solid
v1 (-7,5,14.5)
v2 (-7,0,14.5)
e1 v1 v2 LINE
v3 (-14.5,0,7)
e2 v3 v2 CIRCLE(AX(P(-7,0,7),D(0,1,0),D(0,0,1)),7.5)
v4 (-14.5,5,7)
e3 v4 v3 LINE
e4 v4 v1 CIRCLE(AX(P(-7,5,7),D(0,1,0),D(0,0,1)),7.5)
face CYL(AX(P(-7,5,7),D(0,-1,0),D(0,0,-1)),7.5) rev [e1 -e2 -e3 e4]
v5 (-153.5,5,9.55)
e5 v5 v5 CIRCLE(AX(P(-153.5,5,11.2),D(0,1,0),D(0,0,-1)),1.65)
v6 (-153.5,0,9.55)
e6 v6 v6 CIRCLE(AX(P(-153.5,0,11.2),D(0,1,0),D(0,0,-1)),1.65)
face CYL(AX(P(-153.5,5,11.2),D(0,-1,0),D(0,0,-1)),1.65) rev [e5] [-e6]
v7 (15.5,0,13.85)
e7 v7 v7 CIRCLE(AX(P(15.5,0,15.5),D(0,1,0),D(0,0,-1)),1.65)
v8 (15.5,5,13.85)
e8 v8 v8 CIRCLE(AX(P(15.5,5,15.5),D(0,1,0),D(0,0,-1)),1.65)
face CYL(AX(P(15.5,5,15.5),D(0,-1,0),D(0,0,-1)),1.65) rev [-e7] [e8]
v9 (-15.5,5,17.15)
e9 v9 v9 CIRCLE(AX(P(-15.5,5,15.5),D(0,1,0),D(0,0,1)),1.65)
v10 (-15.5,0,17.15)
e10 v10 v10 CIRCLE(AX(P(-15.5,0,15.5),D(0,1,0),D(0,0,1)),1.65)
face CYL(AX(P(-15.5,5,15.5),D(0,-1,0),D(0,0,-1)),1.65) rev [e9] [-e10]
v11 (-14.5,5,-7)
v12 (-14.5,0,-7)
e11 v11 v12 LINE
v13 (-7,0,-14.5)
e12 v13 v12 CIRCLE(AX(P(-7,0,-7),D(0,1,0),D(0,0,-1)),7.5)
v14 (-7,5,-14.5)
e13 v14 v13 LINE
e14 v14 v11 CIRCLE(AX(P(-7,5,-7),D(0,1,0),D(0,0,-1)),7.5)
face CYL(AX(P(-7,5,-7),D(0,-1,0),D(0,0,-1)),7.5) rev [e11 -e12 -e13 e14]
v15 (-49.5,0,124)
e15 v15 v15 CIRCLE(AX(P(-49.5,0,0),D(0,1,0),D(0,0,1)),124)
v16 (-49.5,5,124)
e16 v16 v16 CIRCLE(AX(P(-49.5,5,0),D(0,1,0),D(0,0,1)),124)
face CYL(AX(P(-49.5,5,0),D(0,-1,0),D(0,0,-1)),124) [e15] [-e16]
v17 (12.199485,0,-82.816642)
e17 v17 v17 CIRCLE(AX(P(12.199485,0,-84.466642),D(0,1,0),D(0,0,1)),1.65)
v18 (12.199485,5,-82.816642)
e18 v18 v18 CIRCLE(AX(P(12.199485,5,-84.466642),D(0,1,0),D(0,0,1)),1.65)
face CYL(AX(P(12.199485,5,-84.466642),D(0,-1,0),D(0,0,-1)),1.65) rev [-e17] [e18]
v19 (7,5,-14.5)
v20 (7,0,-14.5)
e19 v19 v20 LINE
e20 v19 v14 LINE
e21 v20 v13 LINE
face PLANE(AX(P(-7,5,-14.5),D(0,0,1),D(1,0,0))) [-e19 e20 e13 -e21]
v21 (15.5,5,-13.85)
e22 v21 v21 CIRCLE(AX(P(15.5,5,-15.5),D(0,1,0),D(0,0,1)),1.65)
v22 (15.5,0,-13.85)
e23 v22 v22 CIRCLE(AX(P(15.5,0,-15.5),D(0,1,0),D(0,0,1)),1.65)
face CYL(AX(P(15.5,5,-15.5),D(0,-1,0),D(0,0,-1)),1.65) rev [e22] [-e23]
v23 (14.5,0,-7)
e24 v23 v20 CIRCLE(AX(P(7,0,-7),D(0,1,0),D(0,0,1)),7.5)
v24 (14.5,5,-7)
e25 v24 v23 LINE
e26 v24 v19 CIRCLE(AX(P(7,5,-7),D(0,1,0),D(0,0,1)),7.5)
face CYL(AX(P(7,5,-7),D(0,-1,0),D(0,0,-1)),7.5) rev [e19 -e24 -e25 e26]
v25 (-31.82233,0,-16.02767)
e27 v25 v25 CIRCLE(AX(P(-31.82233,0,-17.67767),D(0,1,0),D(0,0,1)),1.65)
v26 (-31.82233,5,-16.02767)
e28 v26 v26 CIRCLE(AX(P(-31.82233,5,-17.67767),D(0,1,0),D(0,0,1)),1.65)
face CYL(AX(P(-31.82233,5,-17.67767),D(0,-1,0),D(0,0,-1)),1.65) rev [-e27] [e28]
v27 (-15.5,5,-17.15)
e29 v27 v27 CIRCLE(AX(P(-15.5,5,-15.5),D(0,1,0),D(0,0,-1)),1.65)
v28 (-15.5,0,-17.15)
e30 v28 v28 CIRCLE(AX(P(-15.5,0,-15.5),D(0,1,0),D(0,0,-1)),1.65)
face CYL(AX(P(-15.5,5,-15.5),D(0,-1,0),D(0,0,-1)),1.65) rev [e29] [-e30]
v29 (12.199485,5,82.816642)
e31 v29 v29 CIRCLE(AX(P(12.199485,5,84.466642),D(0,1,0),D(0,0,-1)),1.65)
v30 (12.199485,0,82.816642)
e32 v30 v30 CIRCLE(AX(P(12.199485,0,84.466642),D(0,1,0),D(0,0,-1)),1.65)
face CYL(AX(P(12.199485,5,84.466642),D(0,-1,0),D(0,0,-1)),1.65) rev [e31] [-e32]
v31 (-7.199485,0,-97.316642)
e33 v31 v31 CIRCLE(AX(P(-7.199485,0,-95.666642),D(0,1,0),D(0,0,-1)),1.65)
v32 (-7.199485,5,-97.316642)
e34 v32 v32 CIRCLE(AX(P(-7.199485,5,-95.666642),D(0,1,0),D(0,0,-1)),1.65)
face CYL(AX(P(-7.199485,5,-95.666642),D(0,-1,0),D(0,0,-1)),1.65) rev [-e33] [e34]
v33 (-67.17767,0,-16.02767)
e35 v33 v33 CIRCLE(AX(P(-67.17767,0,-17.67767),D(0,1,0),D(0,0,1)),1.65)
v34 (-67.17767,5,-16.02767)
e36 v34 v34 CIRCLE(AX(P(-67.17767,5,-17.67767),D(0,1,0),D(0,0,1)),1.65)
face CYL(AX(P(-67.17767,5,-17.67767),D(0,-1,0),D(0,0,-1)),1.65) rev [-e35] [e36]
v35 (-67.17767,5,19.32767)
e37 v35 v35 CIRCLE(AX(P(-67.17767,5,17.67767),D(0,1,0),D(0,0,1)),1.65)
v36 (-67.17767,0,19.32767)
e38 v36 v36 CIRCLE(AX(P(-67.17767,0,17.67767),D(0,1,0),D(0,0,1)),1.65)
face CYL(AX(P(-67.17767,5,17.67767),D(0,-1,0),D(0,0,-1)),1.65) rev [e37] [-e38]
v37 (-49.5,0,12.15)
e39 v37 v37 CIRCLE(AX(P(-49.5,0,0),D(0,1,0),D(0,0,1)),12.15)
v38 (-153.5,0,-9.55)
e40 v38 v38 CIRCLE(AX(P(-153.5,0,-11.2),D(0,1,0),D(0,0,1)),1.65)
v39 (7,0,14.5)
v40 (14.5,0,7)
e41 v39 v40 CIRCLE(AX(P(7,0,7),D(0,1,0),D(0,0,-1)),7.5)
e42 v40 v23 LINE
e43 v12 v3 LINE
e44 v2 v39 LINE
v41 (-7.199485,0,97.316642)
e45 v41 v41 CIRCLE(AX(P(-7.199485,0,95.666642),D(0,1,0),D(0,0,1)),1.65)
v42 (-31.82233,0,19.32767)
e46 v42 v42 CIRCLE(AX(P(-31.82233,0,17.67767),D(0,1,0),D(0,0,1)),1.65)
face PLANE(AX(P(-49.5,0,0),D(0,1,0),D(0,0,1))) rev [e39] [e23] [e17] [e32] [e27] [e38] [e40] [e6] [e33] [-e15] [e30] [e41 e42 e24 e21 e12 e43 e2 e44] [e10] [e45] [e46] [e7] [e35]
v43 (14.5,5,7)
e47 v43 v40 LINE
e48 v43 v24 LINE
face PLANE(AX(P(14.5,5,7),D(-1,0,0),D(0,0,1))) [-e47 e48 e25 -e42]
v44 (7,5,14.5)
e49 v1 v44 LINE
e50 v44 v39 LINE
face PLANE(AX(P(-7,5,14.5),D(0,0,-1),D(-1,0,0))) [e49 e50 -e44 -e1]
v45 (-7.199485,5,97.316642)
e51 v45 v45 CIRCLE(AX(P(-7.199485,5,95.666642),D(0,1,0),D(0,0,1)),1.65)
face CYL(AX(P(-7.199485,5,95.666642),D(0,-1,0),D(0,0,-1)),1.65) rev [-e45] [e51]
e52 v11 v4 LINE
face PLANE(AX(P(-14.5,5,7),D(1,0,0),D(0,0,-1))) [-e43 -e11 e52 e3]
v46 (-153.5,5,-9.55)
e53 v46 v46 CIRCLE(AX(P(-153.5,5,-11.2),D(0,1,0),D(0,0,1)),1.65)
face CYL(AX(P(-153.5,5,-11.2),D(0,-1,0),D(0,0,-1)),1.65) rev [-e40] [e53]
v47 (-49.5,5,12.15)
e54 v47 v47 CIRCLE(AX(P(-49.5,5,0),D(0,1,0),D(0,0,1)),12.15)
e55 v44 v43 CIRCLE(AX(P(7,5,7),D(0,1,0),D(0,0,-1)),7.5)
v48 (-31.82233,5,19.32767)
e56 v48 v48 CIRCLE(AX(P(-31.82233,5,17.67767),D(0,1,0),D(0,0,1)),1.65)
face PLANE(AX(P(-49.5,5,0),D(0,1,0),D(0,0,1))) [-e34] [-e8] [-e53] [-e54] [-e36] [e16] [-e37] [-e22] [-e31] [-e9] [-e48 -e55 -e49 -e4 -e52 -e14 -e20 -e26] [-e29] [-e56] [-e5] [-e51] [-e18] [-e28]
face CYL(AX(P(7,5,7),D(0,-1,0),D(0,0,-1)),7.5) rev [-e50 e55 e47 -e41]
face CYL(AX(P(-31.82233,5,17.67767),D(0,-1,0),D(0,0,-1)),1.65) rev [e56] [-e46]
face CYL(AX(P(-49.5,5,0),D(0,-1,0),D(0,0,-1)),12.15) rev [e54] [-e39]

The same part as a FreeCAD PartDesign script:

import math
import FreeCAD as App
import Part
import Sketcher

V = App.Vector
Q = App.Units.Quantity

doc = App.newDocument("Part")
params = doc.addObject("Spreadsheet::Sheet", "Params")
for row, (alias, value) in enumerate([
    ("sketch1_diameter", "248 mm"),
    ("sketch1_diameter2", "3.3 mm"),
    ("sketch1_diameter3", "24.3 mm"),
    ("sketch1_radius", "7.5 mm"),
    ("sketch1_width", "14 mm"),
    ("pad1_length", "5 mm"),
], start=1):
    params.set(f"A{row}", alias)
    params.set(f"B{row}", "=" + value)
    params.setAlias(f"B{row}", alias)

body = doc.addObject("PartDesign::Body", "Body")

sketch1 = body.newObject("Sketcher::SketchObject", "Sketch")
sketch1.AttachmentSupport = (doc.getObject("XZ_Plane"), [""])
sketch1.MapMode = "FlatFace"
sketch1.addGeometry(Part.Circle(V(-49.5, 0, 0), V(0, 0, 1), 124), False)
sketch1.addGeometry(Part.Circle(V(-153.5, -11.2, 0), V(0, 0, 1), 1.6), False)
sketch1.addGeometry(Part.Circle(V(-153.5, 11.2, 0), V(0, 0, 1), 1.6), False)
sketch1.addGeometry(Part.Circle(V(-67.2, -17.7, 0), V(0, 0, 1), 1.6), False)
sketch1.addGeometry(Part.Circle(V(-31.8, -17.7, 0), V(0, 0, 1), 1.6), False)
sketch1.addGeometry(Part.Circle(V(-7.2, -95.7, 0), V(0, 0, 1), 1.6), False)
sketch1.addGeometry(Part.Circle(V(12.2, -84.5, 0), V(0, 0, 1), 1.6), False)
sketch1.addGeometry(Part.Circle(V(-15.5, -15.5, 0), V(0, 0, 1), 1.6), False)
sketch1.addGeometry(Part.Circle(V(15.5, -15.5, 0), V(0, 0, 1), 1.6), False)
sketch1.addGeometry(Part.Circle(V(-67.2, 17.7, 0), V(0, 0, 1), 1.6), False)
sketch1.addGeometry(Part.Circle(V(-49.5, 0, 0), V(0, 0, 1), 12.2), False)
sketch1.addGeometry(Part.Circle(V(-31.8, 17.7, 0), V(0, 0, 1), 1.6), False)
sketch1.addGeometry(Part.Circle(V(-15.5, 15.5, 0), V(0, 0, 1), 1.6), False)
sketch1.addGeometry(Part.LineSegment(V(14.5, -7, 0), V(14.5, 7, 0)), False)
sketch1.addGeometry(Part.ArcOfCircle(Part.Circle(V(7, 7, 0), V(0, 0, 1), 7.5), math.radians(0), math.radians(90)), False)
sketch1.addGeometry(Part.LineSegment(V(7, 14.5, 0), V(-7, 14.5, 0)), False)
sketch1.addGeometry(Part.ArcOfCircle(Part.Circle(V(-7, 7, 0), V(0, 0, 1), 7.5), math.radians(90), math.radians(180)), False)
sketch1.addGeometry(Part.LineSegment(V(-14.5, 7, 0), V(-14.5, -7, 0)), False)
sketch1.addGeometry(Part.ArcOfCircle(Part.Circle(V(-7, -7, 0), V(0, 0, 1), 7.5), math.radians(180), math.radians(270)), False)
sketch1.addGeometry(Part.LineSegment(V(-7, -14.5, 0), V(7, -14.5, 0)), False)
sketch1.addGeometry(Part.ArcOfCircle(Part.Circle(V(7, -7, 0), V(0, 0, 1), 7.5), math.radians(-90), math.radians(0)), False)
sketch1.addGeometry(Part.Circle(V(15.5, 15.5, 0), V(0, 0, 1), 1.6), False)
sketch1.addGeometry(Part.Circle(V(-7.2, 95.7, 0), V(0, 0, 1), 1.6), False)
sketch1.addGeometry(Part.Circle(V(12.2, 84.5, 0), V(0, 0, 1), 1.6), False)
sketch1.addConstraint(Sketcher.Constraint("Tangent", 13, 2, 14, 1))
sketch1.addConstraint(Sketcher.Constraint("Tangent", 14, 2, 15, 1))
sketch1.addConstraint(Sketcher.Constraint("Tangent", 15, 2, 16, 1))
sketch1.addConstraint(Sketcher.Constraint("Tangent", 16, 2, 17, 1))
sketch1.addConstraint(Sketcher.Constraint("Tangent", 17, 2, 18, 1))
sketch1.addConstraint(Sketcher.Constraint("Tangent", 18, 2, 19, 1))
sketch1.addConstraint(Sketcher.Constraint("Tangent", 19, 2, 20, 1))
sketch1.addConstraint(Sketcher.Constraint("Tangent", 20, 2, 13, 1))
sketch1.addConstraint(Sketcher.Constraint("Vertical", 13))
sketch1.addConstraint(Sketcher.Constraint("Horizontal", 15))
sketch1.addConstraint(Sketcher.Constraint("Vertical", 17))
sketch1.addConstraint(Sketcher.Constraint("Horizontal", 19))
sketch1.addConstraint(Sketcher.Constraint("Coincident", 10, 3, 0, 3))
sketch1.addConstraint(Sketcher.Constraint("Equal", 1, 2))
sketch1.addConstraint(Sketcher.Constraint("Equal", 2, 3))
sketch1.addConstraint(Sketcher.Constraint("Equal", 3, 4))
sketch1.addConstraint(Sketcher.Constraint("Equal", 4, 5))
sketch1.addConstraint(Sketcher.Constraint("Equal", 5, 6))
sketch1.addConstraint(Sketcher.Constraint("Equal", 6, 7))
sketch1.addConstraint(Sketcher.Constraint("Equal", 7, 8))
sketch1.addConstraint(Sketcher.Constraint("Equal", 8, 9))
sketch1.addConstraint(Sketcher.Constraint("Equal", 9, 11))
sketch1.addConstraint(Sketcher.Constraint("Equal", 11, 12))
sketch1.addConstraint(Sketcher.Constraint("Equal", 14, 16))
sketch1.addConstraint(Sketcher.Constraint("Equal", 16, 18))
sketch1.addConstraint(Sketcher.Constraint("Equal", 18, 20))
sketch1.addConstraint(Sketcher.Constraint("Equal", 12, 21))
sketch1.addConstraint(Sketcher.Constraint("Equal", 21, 22))
sketch1.addConstraint(Sketcher.Constraint("Equal", 22, 23))
sketch1.addConstraint(Sketcher.Constraint("Symmetric", 8, 3, 12, 3, -1, 1))
sketch1.addConstraint(Sketcher.Constraint("Symmetric", 14, 3, 18, 3, -1, 1))
sketch1.addConstraint(Sketcher.Constraint("Symmetric", 7, 3, 21, 3, -1, 1))
sketch1.addConstraint(Sketcher.Constraint("Symmetric", 7, 3, 8, 3, -2))
sketch1.addConstraint(Sketcher.Constraint("Symmetric", 1, 3, 2, 3, -1))
sketch1.addConstraint(Sketcher.Constraint("Symmetric", 3, 3, 9, 3, -1))
sketch1.addConstraint(Sketcher.Constraint("Symmetric", 4, 3, 11, 3, -1))
sketch1.addConstraint(Sketcher.Constraint("Symmetric", 5, 3, 22, 3, -1))
sketch1.addConstraint(Sketcher.Constraint("Symmetric", 6, 3, 23, 3, -1))
sketch1.addConstraint(Sketcher.Constraint("PointOnObject", 0, 3, -1))
sketch1.addConstraint(Sketcher.Constraint("Horizontal", 3, 3, 4, 3))
sketch1.addConstraint(Sketcher.Constraint("Equal", 19, 13))
sketch1.addConstraint(Sketcher.Constraint("Diameter", 0, Q("248 mm")))
sketch1.addConstraint(Sketcher.Constraint("Diameter", 1, Q("3.3 mm")))
sketch1.addConstraint(Sketcher.Constraint("Diameter", 10, Q("24.3 mm")))
sketch1.addConstraint(Sketcher.Constraint("Radius", 14, Q("7.5 mm")))
sketch1.addConstraint(Sketcher.Constraint("DistanceX", 15, 2, 15, 1, Q("14 mm")))
sketch1.addConstraint(Sketcher.Constraint("DistanceX", 1, 3, 0, 3, Q("104 mm")))
sketch1.addConstraint(Sketcher.Constraint("DistanceX", 0, 3, 7, 3, Q("34 mm")))
sketch1.addConstraint(Sketcher.Constraint("DistanceX", 7, 3, 8, 3, Q("31 mm")))
sketch1.addConstraint(Sketcher.Constraint("DistanceY", 7, 3, 12, 3, Q("31 mm")))
sketch1.addConstraint(Sketcher.Constraint("DistanceY", 1, 3, -1, 1, Q("11.2 mm")))
sketch1.addConstraint(Sketcher.Constraint("DistanceY", 5, 3, 6, 3, Q("11.2 mm")))
sketch1.addConstraint(Sketcher.Constraint("DistanceX", 3, 3, -1, 1, Q("67.17767 mm")))
sketch1.addConstraint(Sketcher.Constraint("DistanceY", 3, 3, -1, 1, Q("17.67767 mm")))
sketch1.addConstraint(Sketcher.Constraint("DistanceX", 4, 3, -1, 1, Q("31.82233 mm")))
sketch1.addConstraint(Sketcher.Constraint("DistanceY", 5, 3, -1, 1, Q("95.666642 mm")))
sketch1.addConstraint(Sketcher.Constraint("DistanceX", 5, 3, 6, 3, Q("19.398969 mm")))
sketch1.addConstraint(Sketcher.Constraint("DistanceX", 5, 3, -1, 1, Q("7.199485 mm")))
sketch1.setExpression("Constraints[41]", "Params.sketch1_diameter")
sketch1.setExpression("Constraints[42]", "Params.sketch1_diameter2")
sketch1.setExpression("Constraints[43]", "Params.sketch1_diameter3")
sketch1.setExpression("Constraints[44]", "Params.sketch1_radius")
sketch1.setExpression("Constraints[45]", "Params.sketch1_width")
pad1 = body.newObject("PartDesign::Pad", "Pad")
pad1.Profile = sketch1
pad1.setExpression("Length", "Params.pad1_length")
pad1.Reversed = True

doc.recompute()
